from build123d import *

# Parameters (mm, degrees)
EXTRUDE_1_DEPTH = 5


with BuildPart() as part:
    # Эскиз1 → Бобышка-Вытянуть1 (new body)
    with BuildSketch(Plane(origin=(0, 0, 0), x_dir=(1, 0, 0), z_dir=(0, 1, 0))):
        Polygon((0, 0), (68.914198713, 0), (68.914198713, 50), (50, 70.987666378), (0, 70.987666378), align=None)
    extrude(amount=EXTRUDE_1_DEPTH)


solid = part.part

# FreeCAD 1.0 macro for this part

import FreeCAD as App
import Part
import Sketcher
from FreeCAD import Vector

doc = App.newDocument("Part")
body = doc.addObject("PartDesign::Body", "Body")

# Sketch on XZ plane
sketch1 = body.newObject("Sketcher::SketchObject", "Sketch")
sketch1.AttachmentSupport = (doc.getObject("XZ_Plane"), [""])
sketch1.MapMode = "FlatFace"
sketch1.addGeometry([
    Part.LineSegment(Vector(0, 0, 0), Vector(69, 0, 0)),  # 0
    Part.LineSegment(Vector(69, 0, 0), Vector(69, -50, 0)),  # 1
    Part.LineSegment(Vector(69, -50, 0), Vector(50, -71, 0)),  # 2
    Part.LineSegment(Vector(50, -71, 0), Vector(0, -71, 0)),  # 3
    Part.LineSegment(Vector(0, -71, 0), Vector(0, 0, 0)),  # 4
], False)
sketch1.addConstraint([
    Sketcher.Constraint("Coincident", 0, 2, 1, 1),
    Sketcher.Constraint("Coincident", 1, 2, 2, 1),
    Sketcher.Constraint("Coincident", 2, 2, 3, 1),
    Sketcher.Constraint("Coincident", 3, 2, 4, 1),
    Sketcher.Constraint("Coincident", 4, 2, 0, 1),
    Sketcher.Constraint("Horizontal", 0),
    Sketcher.Constraint("Vertical", 1),
    Sketcher.Constraint("Horizontal", 3),
    Sketcher.Constraint("Vertical", 4),
    Sketcher.Constraint("Coincident", 4, 2, -1, 1),
    Sketcher.Constraint("Equal", 3, 1),
    Sketcher.Constraint("DistanceX", 3, 2, 3, 1, 50.0),
    Sketcher.Constraint("DistanceX", 0, 1, 0, 2, 68.914199),
    Sketcher.Constraint("DistanceY", 4, 1, 4, 2, 70.987666),
])
pad1 = body.newObject("PartDesign::Pad", "Pad")
pad1.Profile = sketch1
pad1.Length = 5
pad1.Reversed = True

doc.recompute()
